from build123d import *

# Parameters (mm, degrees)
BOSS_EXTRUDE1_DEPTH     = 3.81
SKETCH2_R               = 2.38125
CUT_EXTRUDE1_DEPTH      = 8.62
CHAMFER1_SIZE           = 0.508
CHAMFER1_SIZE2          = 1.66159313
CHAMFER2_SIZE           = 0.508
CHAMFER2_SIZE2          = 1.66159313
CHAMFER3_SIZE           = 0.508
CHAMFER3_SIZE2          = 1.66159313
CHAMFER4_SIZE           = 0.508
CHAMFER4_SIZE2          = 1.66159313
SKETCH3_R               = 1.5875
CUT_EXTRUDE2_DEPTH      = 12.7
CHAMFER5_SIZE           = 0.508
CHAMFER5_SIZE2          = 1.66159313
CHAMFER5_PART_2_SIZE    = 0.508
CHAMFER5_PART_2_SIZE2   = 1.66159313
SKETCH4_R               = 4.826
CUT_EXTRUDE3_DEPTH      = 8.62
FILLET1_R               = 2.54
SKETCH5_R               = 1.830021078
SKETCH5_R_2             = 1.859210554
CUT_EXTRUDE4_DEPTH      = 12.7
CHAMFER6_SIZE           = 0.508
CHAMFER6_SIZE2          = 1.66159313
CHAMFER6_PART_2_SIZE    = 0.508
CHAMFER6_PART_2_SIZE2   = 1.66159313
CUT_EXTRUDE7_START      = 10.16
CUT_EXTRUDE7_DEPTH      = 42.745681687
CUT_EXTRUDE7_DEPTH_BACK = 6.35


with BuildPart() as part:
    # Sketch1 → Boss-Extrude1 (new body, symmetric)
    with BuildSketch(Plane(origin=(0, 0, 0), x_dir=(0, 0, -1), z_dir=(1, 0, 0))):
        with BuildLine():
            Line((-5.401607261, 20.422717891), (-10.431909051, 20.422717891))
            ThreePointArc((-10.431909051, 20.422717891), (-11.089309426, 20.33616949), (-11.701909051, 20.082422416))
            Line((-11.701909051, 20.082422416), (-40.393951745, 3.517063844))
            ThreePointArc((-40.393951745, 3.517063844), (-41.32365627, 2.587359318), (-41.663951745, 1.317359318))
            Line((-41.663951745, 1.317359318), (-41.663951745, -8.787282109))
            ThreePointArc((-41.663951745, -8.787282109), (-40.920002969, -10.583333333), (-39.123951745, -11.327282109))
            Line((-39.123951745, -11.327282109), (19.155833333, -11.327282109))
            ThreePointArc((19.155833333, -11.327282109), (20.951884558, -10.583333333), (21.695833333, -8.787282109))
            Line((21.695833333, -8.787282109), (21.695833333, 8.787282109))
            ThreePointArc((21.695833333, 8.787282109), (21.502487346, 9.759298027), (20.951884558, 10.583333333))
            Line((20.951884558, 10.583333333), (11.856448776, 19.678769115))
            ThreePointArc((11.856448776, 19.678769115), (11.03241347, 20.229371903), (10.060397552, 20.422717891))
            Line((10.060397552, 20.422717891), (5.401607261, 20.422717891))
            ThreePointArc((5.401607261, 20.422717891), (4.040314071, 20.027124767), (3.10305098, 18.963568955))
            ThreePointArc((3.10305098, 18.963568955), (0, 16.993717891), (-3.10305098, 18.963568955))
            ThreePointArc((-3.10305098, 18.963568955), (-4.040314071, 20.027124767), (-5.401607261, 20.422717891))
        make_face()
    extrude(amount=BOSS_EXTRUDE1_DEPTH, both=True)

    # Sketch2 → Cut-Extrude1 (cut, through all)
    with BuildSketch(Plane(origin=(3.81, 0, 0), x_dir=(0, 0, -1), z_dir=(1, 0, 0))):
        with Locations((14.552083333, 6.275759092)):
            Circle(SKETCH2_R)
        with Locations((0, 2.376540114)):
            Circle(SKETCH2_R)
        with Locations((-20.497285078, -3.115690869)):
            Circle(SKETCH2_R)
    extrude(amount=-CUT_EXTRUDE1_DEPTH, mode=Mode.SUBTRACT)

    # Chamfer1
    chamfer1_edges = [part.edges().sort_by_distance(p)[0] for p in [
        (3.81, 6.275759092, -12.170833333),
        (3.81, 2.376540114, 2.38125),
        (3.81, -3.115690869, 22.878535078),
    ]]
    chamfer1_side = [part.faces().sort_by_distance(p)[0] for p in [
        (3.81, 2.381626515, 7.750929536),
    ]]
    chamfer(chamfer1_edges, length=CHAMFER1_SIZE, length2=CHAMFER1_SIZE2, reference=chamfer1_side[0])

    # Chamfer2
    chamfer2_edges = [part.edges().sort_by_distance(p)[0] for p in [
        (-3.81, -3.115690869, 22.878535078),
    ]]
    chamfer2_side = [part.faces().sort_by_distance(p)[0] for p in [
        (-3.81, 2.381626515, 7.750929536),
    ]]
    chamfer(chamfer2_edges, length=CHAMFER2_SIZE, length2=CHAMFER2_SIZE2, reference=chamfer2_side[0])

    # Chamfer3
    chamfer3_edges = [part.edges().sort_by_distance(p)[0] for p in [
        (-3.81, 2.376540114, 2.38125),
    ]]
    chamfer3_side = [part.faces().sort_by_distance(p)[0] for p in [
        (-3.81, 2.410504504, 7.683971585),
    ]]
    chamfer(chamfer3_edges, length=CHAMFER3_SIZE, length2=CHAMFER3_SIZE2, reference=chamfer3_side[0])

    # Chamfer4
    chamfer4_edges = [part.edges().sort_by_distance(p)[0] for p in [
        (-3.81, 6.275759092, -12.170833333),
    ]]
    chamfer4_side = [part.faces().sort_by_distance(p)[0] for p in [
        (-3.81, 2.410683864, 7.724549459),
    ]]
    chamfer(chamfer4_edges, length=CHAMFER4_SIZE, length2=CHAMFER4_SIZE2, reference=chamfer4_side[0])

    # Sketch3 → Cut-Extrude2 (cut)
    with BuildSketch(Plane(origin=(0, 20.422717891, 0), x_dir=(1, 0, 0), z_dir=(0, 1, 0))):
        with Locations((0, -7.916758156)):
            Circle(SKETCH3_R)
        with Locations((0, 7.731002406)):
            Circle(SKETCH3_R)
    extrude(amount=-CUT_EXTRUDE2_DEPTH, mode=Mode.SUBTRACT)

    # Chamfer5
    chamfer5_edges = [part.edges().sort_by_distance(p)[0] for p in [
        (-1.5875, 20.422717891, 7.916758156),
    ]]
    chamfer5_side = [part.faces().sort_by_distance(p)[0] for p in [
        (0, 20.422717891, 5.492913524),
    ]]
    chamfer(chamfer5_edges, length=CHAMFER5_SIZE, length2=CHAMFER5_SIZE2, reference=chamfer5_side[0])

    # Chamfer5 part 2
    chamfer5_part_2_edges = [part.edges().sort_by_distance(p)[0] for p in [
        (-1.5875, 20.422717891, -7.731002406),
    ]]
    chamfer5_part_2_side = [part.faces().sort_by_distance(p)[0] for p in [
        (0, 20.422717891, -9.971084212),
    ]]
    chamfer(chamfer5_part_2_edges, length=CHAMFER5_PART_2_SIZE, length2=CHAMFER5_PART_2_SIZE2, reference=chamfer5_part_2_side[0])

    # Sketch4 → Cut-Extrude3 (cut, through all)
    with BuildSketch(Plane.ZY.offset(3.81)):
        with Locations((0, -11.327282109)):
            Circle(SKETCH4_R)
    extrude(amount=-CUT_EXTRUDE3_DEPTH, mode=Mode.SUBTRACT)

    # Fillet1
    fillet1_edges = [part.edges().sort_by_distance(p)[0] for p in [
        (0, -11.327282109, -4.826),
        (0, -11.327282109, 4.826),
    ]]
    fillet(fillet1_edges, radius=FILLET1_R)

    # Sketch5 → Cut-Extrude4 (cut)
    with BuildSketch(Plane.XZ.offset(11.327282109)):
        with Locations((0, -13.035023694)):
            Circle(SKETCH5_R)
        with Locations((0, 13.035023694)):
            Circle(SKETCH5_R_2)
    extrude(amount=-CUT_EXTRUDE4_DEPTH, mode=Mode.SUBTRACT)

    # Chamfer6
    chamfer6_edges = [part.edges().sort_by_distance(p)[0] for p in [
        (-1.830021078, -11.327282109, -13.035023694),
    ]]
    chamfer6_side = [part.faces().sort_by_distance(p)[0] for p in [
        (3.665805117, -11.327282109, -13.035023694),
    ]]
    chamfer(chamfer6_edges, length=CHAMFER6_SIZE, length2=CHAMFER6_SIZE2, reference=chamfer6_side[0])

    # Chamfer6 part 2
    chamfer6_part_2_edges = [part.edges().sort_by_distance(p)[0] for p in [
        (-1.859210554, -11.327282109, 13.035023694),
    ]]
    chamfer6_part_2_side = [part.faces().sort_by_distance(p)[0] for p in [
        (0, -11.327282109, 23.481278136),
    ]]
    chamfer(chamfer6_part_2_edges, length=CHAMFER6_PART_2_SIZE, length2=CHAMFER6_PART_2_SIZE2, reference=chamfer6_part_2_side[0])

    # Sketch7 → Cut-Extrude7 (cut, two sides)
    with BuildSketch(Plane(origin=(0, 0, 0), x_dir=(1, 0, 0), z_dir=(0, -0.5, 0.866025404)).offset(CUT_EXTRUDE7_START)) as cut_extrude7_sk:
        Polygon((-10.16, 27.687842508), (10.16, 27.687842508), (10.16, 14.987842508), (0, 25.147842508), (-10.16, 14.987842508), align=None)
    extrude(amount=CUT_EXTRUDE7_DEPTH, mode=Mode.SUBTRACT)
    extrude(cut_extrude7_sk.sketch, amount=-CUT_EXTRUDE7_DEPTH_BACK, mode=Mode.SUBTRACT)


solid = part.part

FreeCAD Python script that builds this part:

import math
import FreeCAD as App
import Part
import Sketcher

V = App.Vector
Q = App.Units.Quantity


def edges_at(feature, points):
    """Names of the edges that pass closest to the given points."""
    edges = feature.Shape.Edges
    near = lambda p: min(range(len(edges)), key=lambda i: edges[i].distToShape(Part.Vertex(*p))[0])
    return sorted({f"Edge{near(p) + 1}" for p in points})


def add_polygon(sketch, points):
    """Adds a closed chain of lines whose ends are joined by coincident constraints."""
    first, n = sketch.GeometryCount, len(points)
    for a, b in zip(points, points[1:] + points[:1]):
        sketch.addGeometry(Part.LineSegment(App.Vector(*a, 0), App.Vector(*b, 0)), False)
    for i in range(n):
        sketch.addConstraint(Sketcher.Constraint("Coincident", first + i, 2, first + (i + 1) % n, 1))

doc = App.newDocument("Part")
body = doc.addObject("PartDesign::Body", "Body")

# Sketch on YZ plane
sketch1 = body.newObject("Sketcher::SketchObject", "Sketch")
sketch1.AttachmentSupport = (doc.getObject("YZ_Plane"), [""])
sketch1.MapMode = "FlatFace"
sketch1.addGeometry([
    Part.LineSegment(V(20.4, 5.4, 0), V(20.4, 10.4, 0)),  # 0
    Part.ArcOfCircle(Part.Circle(V(17.9, 10.4, 0), V(0, 0, 1), 2.5), math.radians(0), math.radians(30)),  # 1
    Part.LineSegment(V(20.1, 11.7, 0), V(3.5, 40.4, 0)),  # 2
    Part.ArcOfCircle(Part.Circle(V(1.3, 39.1, 0), V(0, 0, 1), 2.5), math.radians(30), math.radians(90)),  # 3
    Part.LineSegment(V(1.3, 41.7, 0), V(-8.8, 41.7, 0)),  # 4
    Part.ArcOfCircle(Part.Circle(V(-8.8, 39.1, 0), V(0, 0, 1), 2.5), math.radians(90), math.radians(180)),  # 5
    Part.LineSegment(V(-11.3, 39.1, 0), V(-11.3, -19.2, 0)),  # 6
    Part.ArcOfCircle(Part.Circle(V(-8.8, -19.2, 0), V(0, 0, 1), 2.5), math.radians(180), math.radians(270)),  # 7
    Part.LineSegment(V(-8.8, -21.7, 0), V(8.8, -21.7, 0)),  # 8
    Part.ArcOfCircle(Part.Circle(V(8.8, -19.2, 0), V(0, 0, 1), 2.5), math.radians(-90), math.radians(-45)),  # 9
    Part.LineSegment(V(10.6, -21, 0), V(19.7, -11.9, 0)),  # 10
    Part.ArcOfCircle(Part.Circle(V(17.9, -10.1, 0), V(0, 0, 1), 2.5), math.radians(-45), math.radians(0)),  # 11
    Part.LineSegment(V(20.4, -10.1, 0), V(20.4, -5.4, 0)),  # 12
    Part.ArcOfCircle(Part.Circle(V(17.9, -5.4, 0), V(0, 0, 1), 2.5), math.radians(0), math.radians(65)),  # 13
    Part.ArcOfCircle(Part.Circle(V(20.4, 0, 0), V(0, 0, 1), 3.4), math.radians(115), math.radians(245)),  # 14
    Part.ArcOfCircle(Part.Circle(V(17.9, 5.4, 0), V(0, 0, 1), 2.5), math.radians(-65), math.radians(0)),  # 15
], False)
sketch1.addConstraint([
    Sketcher.Constraint("Tangent", 0, 2, 1, 1),
    Sketcher.Constraint("Tangent", 1, 2, 2, 1),
    Sketcher.Constraint("Tangent", 2, 2, 3, 1),
    Sketcher.Constraint("Tangent", 3, 2, 4, 1),
    Sketcher.Constraint("Tangent", 4, 2, 5, 1),
    Sketcher.Constraint("Tangent", 5, 2, 6, 1),
    Sketcher.Constraint("Tangent", 6, 2, 7, 1),
    Sketcher.Constraint("Tangent", 7, 2, 8, 1),
    Sketcher.Constraint("Tangent", 8, 2, 9, 1),
    Sketcher.Constraint("Tangent", 9, 2, 10, 1),
    Sketcher.Constraint("Tangent", 10, 2, 11, 1),
    Sketcher.Constraint("Tangent", 11, 2, 12, 1),
    Sketcher.Constraint("Tangent", 12, 2, 13, 1),
    Sketcher.Constraint("Tangent", 13, 2, 14, 2),
    Sketcher.Constraint("Tangent", 14, 1, 15, 1),
    Sketcher.Constraint("Tangent", 15, 2, 0, 1),
    Sketcher.Constraint("Vertical", 0),
    Sketcher.Constraint("Horizontal", 4),
    Sketcher.Constraint("Vertical", 6),
    Sketcher.Constraint("Horizontal", 8),
    Sketcher.Constraint("Vertical", 12),
    Sketcher.Constraint("Equal", 1, 3),
    Sketcher.Constraint("Equal", 3, 5),
    Sketcher.Constraint("Equal", 5, 7),
    Sketcher.Constraint("Equal", 7, 9),
    Sketcher.Constraint("Equal", 9, 11),
    Sketcher.Constraint("Equal", 11, 13),
    Sketcher.Constraint("Equal", 13, 15),
    Sketcher.Constraint("Symmetric", 13, 3, 15, 3, -1),
    Sketcher.Constraint("Vertical", 14, 3, 0, 2),
    Sketcher.Constraint("Radius", 1, Q("0.1 in")),
    Sketcher.Constraint("Angle", 2, Q("120 deg")),
    Sketcher.Constraint("Angle", 10, Q("45 deg")),
    Sketcher.Constraint("Radius", 14, Q("0.135 in")),
    Sketcher.Constraint("DistanceX", 5, 3, 1, 3, Q("1.05 in")),
    Sketcher.Constraint("DistanceY", 0, 1, 0, 2, Q("5.030302 mm")),
    Sketcher.Constraint("DistanceX", 4, 2, 4, 1, Q("10.104641 mm")),
    Sketcher.Constraint("DistanceY", 12, 1, 12, 2, Q("4.65879 mm")),
    Sketcher.Constraint("Distance", 10, Q("12.862889 mm")),
    Sketcher.Constraint("DistanceX", -1, 1, 3, 3, Q("1.317359 mm")),
])
pad1 = body.newObject("PartDesign::Pad", "Pad")
pad1.Profile = sketch1
pad1.Length = Q("0.3 in")
pad1.Midplane = True

# Sketch on YZ plane
sketch2 = body.newObject("Sketcher::SketchObject", "Sketch001")
sketch2.AttachmentSupport = (doc.getObject("YZ_Plane"), [""])
sketch2.MapMode = "FlatFace"
sketch2.AttachmentOffset = App.Placement(V(0, 0, 0.15 * 25.4), App.Rotation())
sketch2.addGeometry([
    Part.Circle(V(6.3, -14.6, 0), V(0, 0, 1), 2.4),
    Part.Circle(V(2.4, 0, 0), V(0, 0, 1), 2.4),
    Part.Circle(V(-3.1, 20.5, 0), V(0, 0, 1), 2.4),
], False)
sketch2.addConstraint([
    Sketcher.Constraint("Equal", 0, 1),
    Sketcher.Constraint("Equal", 1, 2),
    Sketcher.Constraint("PointOnObject", 1, 3, -1),
    Sketcher.Constraint("Diameter", 0, Q("0.1875 in")),
    Sketcher.Constraint("DistanceX", -1, 1, 0, 3, Q("6.275759 mm")),
    Sketcher.Constraint("DistanceX", -1, 1, 1, 3, Q("2.37654 mm")),
    Sketcher.Constraint("DistanceX", 2, 3, -1, 1, Q("3.115691 mm")),
    Sketcher.Constraint("DistanceY", 0, 3, 2, 3, Q("35.049368 mm")),
    Sketcher.Constraint("DistanceY", 0, 3, -1, 1, Q("14.552083 mm")),
])
pocket1 = body.newObject("PartDesign::Pocket", "Pocket")
pocket1.Profile = sketch2
pocket1.Type = "ThroughAll"
doc.recompute()

chamfer = body.newObject("PartDesign::Chamfer", "Chamfer")
chamfer.Base = (pocket1, edges_at(pocket1, [(3.81, 6.276, -12.171), (3.81, 2.377, 2.381), (3.81, -3.116, 22.879)]))
chamfer.ChamferType = "Two distances"
chamfer.Size = Q("0.02 in")
chamfer.Size2 = 1.661593
doc.recompute()

chamfer2 = body.newObject("PartDesign::Chamfer", "Chamfer001")
chamfer2.Base = (chamfer, edges_at(chamfer, [(-3.81, -3.116, 22.879)]))
chamfer2.ChamferType = "Two distances"
chamfer2.Size = Q("0.02 in")
chamfer2.Size2 = 1.661593
doc.recompute()

chamfer3 = body.newObject("PartDesign::Chamfer", "Chamfer002")
chamfer3.Base = (chamfer2, edges_at(chamfer2, [(-3.81, 2.377, 2.381)]))
chamfer3.ChamferType = "Two distances"
chamfer3.Size = Q("0.02 in")
chamfer3.Size2 = 1.661593
doc.recompute()

chamfer4 = body.newObject("PartDesign::Chamfer", "Chamfer003")
chamfer4.Base = (chamfer3, edges_at(chamfer3, [(-3.81, 6.276, -12.171)]))
chamfer4.ChamferType = "Two distances"
chamfer4.Size = Q("0.02 in")
chamfer4.Size2 = 1.661593

# Sketch on XZ plane
sketch3 = body.newObject("Sketcher::SketchObject", "Sketch002")
sketch3.AttachmentSupport = (doc.getObject("XZ_Plane"), [""])
sketch3.MapMode = "FlatFace"
sketch3.AttachmentOffset = App.Placement(V(0, 0, -20.422718), App.Rotation())
sketch3.addGeometry([
    Part.Circle(V(0, 7.9, 0), V(0, 0, 1), 1.6),
    Part.Circle(V(0, -7.7, 0), V(0, 0, 1), 1.6),
], False)
sketch3.addConstraint([
    Sketcher.Constraint("Equal", 0, 1),
    Sketcher.Constraint("PointOnObject", 0, 3, -2),
    Sketcher.Constraint("PointOnObject", 1, 3, -2),
    Sketcher.Constraint("Diameter", 0, Q("0.125 in")),
    Sketcher.Constraint("DistanceY", -1, 1, 0, 3, Q("7.916758 mm")),
    Sketcher.Constraint("DistanceY", 1, 3, 0, 3, Q("15.647761 mm")),
])
pocket2 = body.newObject("PartDesign::Pocket", "Pocket001")
pocket2.Profile = sketch3
pocket2.Length = Q("0.5 in")
pocket2.Reversed = True
doc.recompute()

chamfer5 = body.newObject("PartDesign::Chamfer", "Chamfer004")
chamfer5.Base = (pocket2, edges_at(pocket2, [(-1.587, 20.423, 7.917)]))
chamfer5.ChamferType = "Two distances"
chamfer5.Size = Q("0.02 in")
chamfer5.Size2 = 1.661593
doc.recompute()

chamfer6 = body.newObject("PartDesign::Chamfer", "Chamfer005")
chamfer6.Base = (chamfer5, edges_at(chamfer5, [(-1.587, 20.423, -7.731)]))
chamfer6.ChamferType = "Two distances"
chamfer6.Size = Q("0.02 in")
chamfer6.Size2 = 1.661593

# Sketch on YZ plane
sketch4 = body.newObject("Sketcher::SketchObject", "Sketch003")
sketch4.AttachmentSupport = (doc.getObject("YZ_Plane"), [""])
sketch4.MapMode = "FlatFace"
sketch4.AttachmentOffset = App.Placement(V(0, 0, -0.15 * 25.4), App.Rotation())
sketch4.addGeometry(Part.Circle(V(-11.3, 0, 0), V(0, 0, 1), 4.8), False)
sketch4.addConstraint([
    Sketcher.Constraint("PointOnObject", 0, 3, -1),
    Sketcher.Constraint("Diameter", 0, Q("0.38 in")),
    Sketcher.Constraint("DistanceX", 0, 3, -1, 1, Q("11.327282 mm")),
])
pocket3 = body.newObject("PartDesign::Pocket", "Pocket002")
pocket3.Profile = sketch4
pocket3.Type = "ThroughAll"
pocket3.Reversed = True
doc.recompute()

fillet = body.newObject("PartDesign::Fillet", "Fillet")
fillet.Base = (pocket3, edges_at(pocket3, [(0, -11.327, -4.826), (0, -11.327, 4.826)]))
fillet.Radius = Q("0.1 in")

# Sketch on XZ plane
sketch5 = body.newObject("Sketcher::SketchObject", "Sketch004")
sketch5.AttachmentSupport = (doc.getObject("XZ_Plane"), [""])
sketch5.MapMode = "FlatFace"
sketch5.AttachmentOffset = App.Placement(V(0, 0, 11.327282), App.Rotation())
sketch5.addGeometry([
    Part.Circle(V(0, -13, 0), V(0, 0, 1), 1.8),
    Part.Circle(V(0, 13, 0), V(0, 0, 1), 1.9),
], False)
sketch5.addConstraint([
    Sketcher.Constraint("Symmetric", 0, 3, 1, 3, -1, 1),
    Sketcher.Constraint("PointOnObject", 0, 3, -2),
    Sketcher.Constraint("Diameter", 1, Q("3.718421 mm")),
    Sketcher.Constraint("Diameter", 0, Q("3.660042 mm")),
    Sketcher.Constraint("DistanceY", 0, 3, -1, 1, Q("13.035024 mm")),
])
pocket4 = body.newObject("PartDesign::Pocket", "Pocket003")
pocket4.Profile = sketch5
pocket4.Length = Q("0.5 in")
doc.recompute()

chamfer7 = body.newObject("PartDesign::Chamfer", "Chamfer006")
chamfer7.Base = (pocket4, edges_at(pocket4, [(-1.83, -11.327, -13.035)]))
chamfer7.ChamferType = "Two distances"
chamfer7.Size = Q("0.02 in")
chamfer7.Size2 = 1.661593
doc.recompute()

chamfer8 = body.newObject("PartDesign::Chamfer", "Chamfer007")
chamfer8.Base = (chamfer7, edges_at(chamfer7, [(-1.859, -11.327, 13.035)]))
chamfer8.ChamferType = "Two distances"
chamfer8.Size = Q("0.02 in")
chamfer8.Size2 = 1.661593

# Sketch on an angled plane
sketch6 = body.newObject("Sketcher::SketchObject", "Sketch005")
sketch6.Placement = App.Placement(V(0, -5.08, 8.798818), App.Rotation(V(1, 0, 0), V(0, 0.866025404, 0.5), V(0, -0.5, 0.866025404), "ZXY"))
add_polygon(sketch6, [(10, 28), (-10, 28), (-10, 15), (0, 25), (10, 15)])  # lines 0-4
sketch6.addConstraint([
    Sketcher.Constraint("Horizontal", 0),
    Sketcher.Constraint("Vertical", 1),
    Sketcher.Constraint("Vertical", 4),
    Sketcher.Constraint("Symmetric", 1, 2, 3, 2, -2),
    Sketcher.Constraint("PointOnObject", 2, 2, -2),
    Sketcher.Constraint("Perpendicular", 2, 3),
    Sketcher.Constraint("DistanceX", 0, 2, 0, 1, Q("0.8 in")),
    Sketcher.Constraint("DistanceY", 1, 2, 1, 1, Q("0.5 in")),
    Sketcher.Constraint("DistanceY", -1, 1, 0, 2, Q("27.687843 mm")),
])
pocket5 = body.newObject("PartDesign::Pocket", "Pocket004")
pocket5.Profile = sketch6
pocket5.Type = "TwoLengths"
pocket5.Length = 42.745682
pocket5.Length2 = Q("0.25 in")
pocket5.Reversed = True

doc.recompute()
